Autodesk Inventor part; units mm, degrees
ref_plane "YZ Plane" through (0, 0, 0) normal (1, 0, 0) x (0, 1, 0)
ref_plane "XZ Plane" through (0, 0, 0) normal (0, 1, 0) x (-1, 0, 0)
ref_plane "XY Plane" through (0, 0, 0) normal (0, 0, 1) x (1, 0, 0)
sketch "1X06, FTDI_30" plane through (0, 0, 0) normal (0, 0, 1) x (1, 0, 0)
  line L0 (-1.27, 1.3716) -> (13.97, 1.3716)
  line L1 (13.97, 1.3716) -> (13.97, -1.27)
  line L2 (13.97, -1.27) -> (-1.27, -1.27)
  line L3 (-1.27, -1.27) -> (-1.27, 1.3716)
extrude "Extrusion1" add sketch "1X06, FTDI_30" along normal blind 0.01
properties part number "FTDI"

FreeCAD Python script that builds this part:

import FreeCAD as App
import Part
import Sketcher

V = App.Vector
Q = App.Units.Quantity


def add_polygon(sketch, points):
    """Adds a closed chain of lines whose ends are joined by coincident constraints."""
    first, n = sketch.GeometryCount, len(points)
    for a, b in zip(points, points[1:] + points[:1]):
        sketch.addGeometry(Part.LineSegment(App.Vector(*a, 0), App.Vector(*b, 0)), False)
    for i in range(n):
        sketch.addConstraint(Sketcher.Constraint("Coincident", first + i, 2, first + (i + 1) % n, 1))

doc = App.newDocument("Part")
params = doc.addObject("Spreadsheet::Sheet", "Params")
for row, (alias, value) in enumerate([
    ("sketch1_width", "0.6 in"),
    ("sketch1_height", "0.104 in"),
    ("pad1_length", "0.0003937 in"),
], start=1):
    params.set(f"A{row}", alias)
    params.set(f"B{row}", "=" + value)
    params.setAlias(f"B{row}", alias)

body = doc.addObject("PartDesign::Body", "Body")

# Sketch on XY plane
sketch1 = doc.addObject("Sketcher::SketchObject", "Sketch")
body.addObject(sketch1)
sketch1.AttachmentSupport = (doc.XY_Plane, [""])
sketch1.MapMode = "FlatFace"
add_polygon(sketch1, [(13.97, 1.3716), (-1.27, 1.3716), (-1.27, -1.27), (13.97, -1.27)])  # lines 0-3
sketch1.addConstraint(Sketcher.Constraint("Horizontal", 0))
sketch1.addConstraint(Sketcher.Constraint("Vertical", 1))
sketch1.addConstraint(Sketcher.Constraint("Horizontal", 2))
sketch1.addConstraint(Sketcher.Constraint("Vertical", 3))
sketch1.addConstraint(Sketcher.Constraint("DistanceX", 0, 2, 0, 1, Q("0.6 in")))
sketch1.addConstraint(Sketcher.Constraint("DistanceY", 1, 2, 1, 1, Q("0.104 in")))
sketch1.addConstraint(Sketcher.Constraint("DistanceX", 0, 2, -1, 1, Q("0.05 in")))
sketch1.addConstraint(Sketcher.Constraint("DistanceY", 1, 2, -1, 1, Q("0.05 in")))
sketch1.setExpression("Constraints[8]", "Params.sketch1_width")
sketch1.setExpression("Constraints[9]", "Params.sketch1_height")
pad1 = doc.addObject("PartDesign::Pad", "Pad")
body.addObject(pad1)
pad1.Profile = sketch1
pad1.setExpression("Length", "Params.pad1_length")

doc.recompute()
